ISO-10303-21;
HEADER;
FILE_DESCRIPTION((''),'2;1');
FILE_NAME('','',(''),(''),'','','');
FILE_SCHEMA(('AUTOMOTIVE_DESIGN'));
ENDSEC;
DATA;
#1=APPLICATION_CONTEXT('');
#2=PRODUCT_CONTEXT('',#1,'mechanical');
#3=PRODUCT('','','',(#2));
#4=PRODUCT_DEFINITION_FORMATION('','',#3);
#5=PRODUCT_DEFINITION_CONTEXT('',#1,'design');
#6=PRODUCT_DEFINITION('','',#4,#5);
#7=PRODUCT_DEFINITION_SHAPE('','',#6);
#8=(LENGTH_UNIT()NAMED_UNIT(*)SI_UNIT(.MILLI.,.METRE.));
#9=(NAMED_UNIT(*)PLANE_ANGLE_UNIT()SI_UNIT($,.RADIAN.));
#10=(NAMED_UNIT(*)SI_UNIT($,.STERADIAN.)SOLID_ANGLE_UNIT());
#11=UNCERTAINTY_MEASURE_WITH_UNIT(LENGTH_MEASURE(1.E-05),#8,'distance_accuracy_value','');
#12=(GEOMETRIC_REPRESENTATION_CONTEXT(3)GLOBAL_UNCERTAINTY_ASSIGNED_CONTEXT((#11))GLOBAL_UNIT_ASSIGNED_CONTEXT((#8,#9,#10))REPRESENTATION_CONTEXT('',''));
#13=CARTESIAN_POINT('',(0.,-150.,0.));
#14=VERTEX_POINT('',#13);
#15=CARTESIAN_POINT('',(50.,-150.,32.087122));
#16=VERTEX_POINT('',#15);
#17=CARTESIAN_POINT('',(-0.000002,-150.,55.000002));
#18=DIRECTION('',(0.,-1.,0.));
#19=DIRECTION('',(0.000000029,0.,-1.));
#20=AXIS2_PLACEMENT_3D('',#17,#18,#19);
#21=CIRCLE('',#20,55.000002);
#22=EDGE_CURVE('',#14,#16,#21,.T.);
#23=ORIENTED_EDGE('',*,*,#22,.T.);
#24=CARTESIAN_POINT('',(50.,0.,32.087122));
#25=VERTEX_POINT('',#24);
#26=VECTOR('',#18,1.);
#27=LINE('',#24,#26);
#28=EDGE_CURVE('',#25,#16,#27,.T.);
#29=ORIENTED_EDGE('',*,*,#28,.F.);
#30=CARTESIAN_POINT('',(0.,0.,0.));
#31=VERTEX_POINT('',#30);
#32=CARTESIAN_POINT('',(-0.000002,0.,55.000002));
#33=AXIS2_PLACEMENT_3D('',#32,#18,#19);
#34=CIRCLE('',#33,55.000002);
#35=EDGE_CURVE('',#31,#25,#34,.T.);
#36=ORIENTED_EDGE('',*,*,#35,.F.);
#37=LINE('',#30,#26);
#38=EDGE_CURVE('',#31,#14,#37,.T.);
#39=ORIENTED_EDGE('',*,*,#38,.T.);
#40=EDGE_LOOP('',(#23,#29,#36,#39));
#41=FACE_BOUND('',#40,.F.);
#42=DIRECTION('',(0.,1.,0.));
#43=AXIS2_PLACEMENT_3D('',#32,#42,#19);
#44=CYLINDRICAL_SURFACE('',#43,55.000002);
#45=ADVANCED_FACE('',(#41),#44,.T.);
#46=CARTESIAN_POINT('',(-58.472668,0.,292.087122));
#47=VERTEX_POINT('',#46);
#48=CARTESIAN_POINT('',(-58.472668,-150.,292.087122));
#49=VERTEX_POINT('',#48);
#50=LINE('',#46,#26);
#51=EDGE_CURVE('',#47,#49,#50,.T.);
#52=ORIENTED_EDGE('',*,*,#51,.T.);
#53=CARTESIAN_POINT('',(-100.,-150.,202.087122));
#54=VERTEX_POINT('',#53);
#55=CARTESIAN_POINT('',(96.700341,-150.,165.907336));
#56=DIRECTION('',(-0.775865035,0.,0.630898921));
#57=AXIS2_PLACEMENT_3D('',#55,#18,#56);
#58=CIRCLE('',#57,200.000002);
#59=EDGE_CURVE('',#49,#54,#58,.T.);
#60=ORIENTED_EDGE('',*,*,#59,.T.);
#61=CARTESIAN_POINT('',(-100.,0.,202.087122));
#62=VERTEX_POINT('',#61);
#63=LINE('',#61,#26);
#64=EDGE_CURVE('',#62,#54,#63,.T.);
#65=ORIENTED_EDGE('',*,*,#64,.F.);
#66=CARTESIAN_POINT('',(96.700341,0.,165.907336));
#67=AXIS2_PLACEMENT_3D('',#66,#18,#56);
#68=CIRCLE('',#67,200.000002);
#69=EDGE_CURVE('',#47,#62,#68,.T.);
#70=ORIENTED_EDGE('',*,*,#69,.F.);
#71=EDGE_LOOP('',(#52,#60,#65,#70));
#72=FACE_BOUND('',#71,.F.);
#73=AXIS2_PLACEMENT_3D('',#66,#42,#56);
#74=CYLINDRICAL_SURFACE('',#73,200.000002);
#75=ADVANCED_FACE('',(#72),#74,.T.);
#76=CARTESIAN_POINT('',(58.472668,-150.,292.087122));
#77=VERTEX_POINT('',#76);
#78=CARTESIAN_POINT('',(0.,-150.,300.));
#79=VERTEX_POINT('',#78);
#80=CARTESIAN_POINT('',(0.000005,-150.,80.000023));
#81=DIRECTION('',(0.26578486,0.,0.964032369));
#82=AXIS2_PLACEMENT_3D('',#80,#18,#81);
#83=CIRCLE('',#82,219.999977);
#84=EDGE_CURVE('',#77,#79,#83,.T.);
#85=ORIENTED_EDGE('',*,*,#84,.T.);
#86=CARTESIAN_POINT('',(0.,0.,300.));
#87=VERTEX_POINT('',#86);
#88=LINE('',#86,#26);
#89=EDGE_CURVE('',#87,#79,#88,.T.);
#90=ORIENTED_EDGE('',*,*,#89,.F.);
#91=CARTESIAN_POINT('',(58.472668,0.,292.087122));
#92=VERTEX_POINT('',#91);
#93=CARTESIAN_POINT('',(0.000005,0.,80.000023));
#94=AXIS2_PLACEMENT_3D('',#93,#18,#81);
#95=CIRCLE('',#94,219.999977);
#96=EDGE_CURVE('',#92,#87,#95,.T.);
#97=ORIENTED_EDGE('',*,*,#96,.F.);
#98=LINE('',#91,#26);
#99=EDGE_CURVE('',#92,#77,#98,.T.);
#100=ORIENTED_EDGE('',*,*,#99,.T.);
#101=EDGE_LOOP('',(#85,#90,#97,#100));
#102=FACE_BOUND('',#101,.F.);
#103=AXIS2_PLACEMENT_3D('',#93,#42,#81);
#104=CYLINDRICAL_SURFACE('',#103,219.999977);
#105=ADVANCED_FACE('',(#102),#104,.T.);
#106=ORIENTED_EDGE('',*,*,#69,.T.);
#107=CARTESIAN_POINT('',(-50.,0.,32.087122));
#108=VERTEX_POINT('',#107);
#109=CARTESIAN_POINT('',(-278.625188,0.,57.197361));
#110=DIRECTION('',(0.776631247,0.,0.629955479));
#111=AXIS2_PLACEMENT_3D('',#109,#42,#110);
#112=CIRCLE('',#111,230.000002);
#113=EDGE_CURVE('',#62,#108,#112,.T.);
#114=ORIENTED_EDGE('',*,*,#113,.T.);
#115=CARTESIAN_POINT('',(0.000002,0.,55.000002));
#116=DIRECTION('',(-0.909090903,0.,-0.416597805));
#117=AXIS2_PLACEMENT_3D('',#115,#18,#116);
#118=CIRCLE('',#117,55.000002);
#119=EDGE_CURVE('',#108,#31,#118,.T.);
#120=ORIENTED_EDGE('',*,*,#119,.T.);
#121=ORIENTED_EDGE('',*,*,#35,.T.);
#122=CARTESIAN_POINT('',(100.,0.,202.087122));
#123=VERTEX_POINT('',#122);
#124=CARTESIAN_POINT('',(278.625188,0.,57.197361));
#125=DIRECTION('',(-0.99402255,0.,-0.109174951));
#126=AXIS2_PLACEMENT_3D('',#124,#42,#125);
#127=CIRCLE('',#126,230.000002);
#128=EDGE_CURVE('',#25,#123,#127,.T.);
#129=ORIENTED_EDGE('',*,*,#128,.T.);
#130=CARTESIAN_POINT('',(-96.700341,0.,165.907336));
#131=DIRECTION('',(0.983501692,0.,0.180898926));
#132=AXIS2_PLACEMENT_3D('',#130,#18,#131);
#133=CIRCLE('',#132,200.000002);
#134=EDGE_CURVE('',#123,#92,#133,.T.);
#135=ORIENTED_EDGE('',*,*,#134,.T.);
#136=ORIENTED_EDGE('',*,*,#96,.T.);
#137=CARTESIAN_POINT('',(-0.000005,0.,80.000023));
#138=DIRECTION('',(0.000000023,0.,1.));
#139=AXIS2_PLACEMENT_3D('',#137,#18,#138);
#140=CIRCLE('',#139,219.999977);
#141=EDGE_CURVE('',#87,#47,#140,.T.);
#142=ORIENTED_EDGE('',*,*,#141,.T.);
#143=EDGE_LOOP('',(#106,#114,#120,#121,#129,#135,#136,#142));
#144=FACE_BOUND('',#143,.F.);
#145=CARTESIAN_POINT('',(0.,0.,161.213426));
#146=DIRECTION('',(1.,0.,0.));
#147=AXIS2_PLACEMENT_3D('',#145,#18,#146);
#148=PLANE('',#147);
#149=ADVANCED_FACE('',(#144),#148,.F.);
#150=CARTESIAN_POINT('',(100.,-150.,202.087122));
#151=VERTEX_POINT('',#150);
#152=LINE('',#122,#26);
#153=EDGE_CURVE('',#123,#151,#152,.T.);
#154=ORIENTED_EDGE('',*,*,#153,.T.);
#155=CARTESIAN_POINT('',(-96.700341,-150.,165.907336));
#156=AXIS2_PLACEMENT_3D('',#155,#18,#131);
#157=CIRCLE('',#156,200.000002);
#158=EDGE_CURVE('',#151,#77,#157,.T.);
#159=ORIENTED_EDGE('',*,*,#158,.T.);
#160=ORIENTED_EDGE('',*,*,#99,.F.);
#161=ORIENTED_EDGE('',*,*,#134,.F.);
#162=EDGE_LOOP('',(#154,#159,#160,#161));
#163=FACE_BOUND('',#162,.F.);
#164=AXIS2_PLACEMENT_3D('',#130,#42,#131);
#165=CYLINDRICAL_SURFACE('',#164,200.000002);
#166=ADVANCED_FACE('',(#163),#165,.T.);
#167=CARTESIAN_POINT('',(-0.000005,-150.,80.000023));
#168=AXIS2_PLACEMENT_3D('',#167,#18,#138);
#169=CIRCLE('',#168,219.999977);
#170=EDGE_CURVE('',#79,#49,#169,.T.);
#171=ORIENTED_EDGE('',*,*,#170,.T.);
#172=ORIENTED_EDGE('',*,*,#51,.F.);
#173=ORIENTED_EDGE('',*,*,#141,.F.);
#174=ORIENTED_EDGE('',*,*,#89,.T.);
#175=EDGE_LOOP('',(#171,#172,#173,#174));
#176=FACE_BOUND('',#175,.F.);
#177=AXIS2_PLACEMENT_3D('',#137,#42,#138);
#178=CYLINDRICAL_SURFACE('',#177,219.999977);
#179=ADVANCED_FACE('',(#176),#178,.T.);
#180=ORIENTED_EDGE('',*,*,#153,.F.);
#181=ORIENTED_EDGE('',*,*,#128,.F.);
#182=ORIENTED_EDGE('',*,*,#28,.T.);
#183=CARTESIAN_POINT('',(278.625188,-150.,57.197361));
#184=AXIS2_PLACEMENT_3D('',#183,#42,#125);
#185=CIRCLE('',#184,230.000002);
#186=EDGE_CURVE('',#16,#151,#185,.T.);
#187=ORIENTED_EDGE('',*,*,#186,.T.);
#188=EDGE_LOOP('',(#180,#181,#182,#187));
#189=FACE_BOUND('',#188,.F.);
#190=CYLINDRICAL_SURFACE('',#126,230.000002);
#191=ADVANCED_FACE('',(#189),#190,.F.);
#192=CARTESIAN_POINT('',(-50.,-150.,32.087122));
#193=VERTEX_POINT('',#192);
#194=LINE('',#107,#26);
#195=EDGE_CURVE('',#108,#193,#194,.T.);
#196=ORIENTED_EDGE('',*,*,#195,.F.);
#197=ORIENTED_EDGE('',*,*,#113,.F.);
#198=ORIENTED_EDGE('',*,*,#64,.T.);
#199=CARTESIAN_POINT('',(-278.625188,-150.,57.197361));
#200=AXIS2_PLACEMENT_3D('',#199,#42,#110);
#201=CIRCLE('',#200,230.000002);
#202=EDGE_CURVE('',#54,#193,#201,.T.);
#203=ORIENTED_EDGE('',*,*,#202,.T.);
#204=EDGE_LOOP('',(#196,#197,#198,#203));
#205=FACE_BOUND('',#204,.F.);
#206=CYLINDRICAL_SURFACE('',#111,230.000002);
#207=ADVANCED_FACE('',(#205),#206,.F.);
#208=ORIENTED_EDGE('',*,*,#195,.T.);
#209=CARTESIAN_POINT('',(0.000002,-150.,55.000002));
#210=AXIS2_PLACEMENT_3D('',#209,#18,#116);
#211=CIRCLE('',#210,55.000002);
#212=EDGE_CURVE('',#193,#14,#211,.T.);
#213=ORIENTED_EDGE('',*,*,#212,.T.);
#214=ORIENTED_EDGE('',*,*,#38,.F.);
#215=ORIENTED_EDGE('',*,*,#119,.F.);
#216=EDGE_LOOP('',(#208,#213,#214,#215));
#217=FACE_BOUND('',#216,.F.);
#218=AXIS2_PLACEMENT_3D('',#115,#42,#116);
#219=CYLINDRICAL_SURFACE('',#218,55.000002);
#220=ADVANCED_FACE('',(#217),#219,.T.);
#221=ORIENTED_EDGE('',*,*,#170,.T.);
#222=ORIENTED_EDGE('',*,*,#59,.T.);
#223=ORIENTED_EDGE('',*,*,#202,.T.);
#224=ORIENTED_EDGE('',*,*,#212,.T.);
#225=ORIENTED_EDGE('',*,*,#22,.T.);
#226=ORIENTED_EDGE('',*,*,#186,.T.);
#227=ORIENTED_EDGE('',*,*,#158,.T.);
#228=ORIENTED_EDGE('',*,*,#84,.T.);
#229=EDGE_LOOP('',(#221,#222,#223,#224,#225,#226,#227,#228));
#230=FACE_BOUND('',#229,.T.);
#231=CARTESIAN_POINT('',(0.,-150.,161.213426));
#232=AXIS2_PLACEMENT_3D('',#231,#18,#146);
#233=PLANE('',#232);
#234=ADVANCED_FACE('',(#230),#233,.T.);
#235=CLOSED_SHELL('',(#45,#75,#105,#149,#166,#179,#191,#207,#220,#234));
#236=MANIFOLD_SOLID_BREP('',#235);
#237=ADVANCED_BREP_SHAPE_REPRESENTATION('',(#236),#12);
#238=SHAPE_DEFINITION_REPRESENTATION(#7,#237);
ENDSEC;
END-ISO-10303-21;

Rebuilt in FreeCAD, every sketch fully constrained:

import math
import FreeCAD as App
import Part
import Sketcher
from FreeCAD import Vector

doc = App.newDocument("Part")
body = doc.addObject("PartDesign::Body", "Body")

# Sketch on XZ plane
sketch1 = body.newObject("Sketcher::SketchObject", "Sketch")
sketch1.AttachmentSupport = (doc.getObject("XZ_Plane"), [""])
sketch1.MapMode = "FlatFace"
sketch1.addGeometry([
    Part.ArcOfCircle(Part.Circle(Vector(-96.700341, 165.907336, 0), Vector(0, 0, 1), 200.000002), math.radians(10.422124), math.radians(39.116474)),  # 0
    Part.ArcOfCircle(Part.Circle(Vector(0.000005, 80.000023, 0), Vector(0, 0, 1), 219.999977), math.radians(74.586406), math.radians(90.000001)),  # 1
    Part.ArcOfCircle(Part.Circle(Vector(-0.000005, 80.000023, 0), Vector(0, 0, 1), 219.999977), math.radians(89.999999), math.radians(105.413594)),  # 2
    Part.ArcOfCircle(Part.Circle(Vector(96.700341, 165.907336, 0), Vector(0, 0, 1), 200.000002), math.radians(140.883526), math.radians(169.577876)),  # 3
    Part.ArcOfCircle(Part.Circle(Vector(-278.625188, 57.197361, 0), Vector(0, 0, 1), 230.000002), math.radians(-6.267757), math.radians(39.046838)),  # 4
    Part.ArcOfCircle(Part.Circle(Vector(0.000002, 55.000002, 0), Vector(0, 0, 1), 55.000002), math.radians(-155.380022), math.radians(-90.000002)),  # 5
    Part.ArcOfCircle(Part.Circle(Vector(-0.000002, 55.000002, 0), Vector(0, 0, 1), 55.000002), math.radians(-89.999998), math.radians(-24.619978)),  # 6
    Part.ArcOfCircle(Part.Circle(Vector(278.625188, 57.197361, 0), Vector(0, 0, 1), 230.000002), math.radians(140.953162), math.radians(186.267757)),  # 7
], False)
sketch1.addConstraint([
    Sketcher.Constraint("Coincident", 0, 2, 1, 1),
    Sketcher.Constraint("Tangent", 1, 2, 2, 1),
    Sketcher.Constraint("Coincident", 2, 2, 3, 1),
    Sketcher.Constraint("Coincident", 3, 2, 4, 2),
    Sketcher.Constraint("Coincident", 4, 1, 5, 1),
    Sketcher.Constraint("Tangent", 5, 2, 6, 1),
    Sketcher.Constraint("Coincident", 6, 2, 7, 2),
    Sketcher.Constraint("Coincident", 7, 1, 0, 1),
    Sketcher.Constraint("Coincident", 5, 2, -1, 1),
    Sketcher.Constraint("Equal", 1, 2),
    Sketcher.Constraint("Equal", 0, 3),
    Sketcher.Constraint("Equal", 5, 6),
    Sketcher.Constraint("Equal", 4, 7),
    Sketcher.Constraint("Symmetric", 0, 3, 3, 3, -2),
    Sketcher.Constraint("Symmetric", 4, 3, 7, 3, -2),
    Sketcher.Constraint("PointOnObject", 5, 3, -2),
    Sketcher.Constraint("PointOnObject", 1, 2, -2),
    Sketcher.Constraint("Horizontal", 0, 2, 2, 2),
    Sketcher.Constraint("Radius", 4, 230.000002),
    Sketcher.Constraint("DistanceY", -1, 1, 1, 2, 300.0),
    Sketcher.Constraint("DistanceX", 3, 2, -1, 1, 100.0),
    Sketcher.Constraint("DistanceX", 4, 1, -1, 1, 50.0),
    Sketcher.Constraint("DistanceY", 3, 2, 2, 2, 90.0),
    Sketcher.Constraint("Radius", 0, 200.000002),
    Sketcher.Constraint("Radius", 1, 219.999977),
    Sketcher.Constraint("Radius", 5, 55.000002),
    Sketcher.Constraint("DistanceY", 2, 3, 2, 2, 212.087099),
])
pad1 = body.newObject("PartDesign::Pad", "Pad")
pad1.Profile = sketch1
pad1.Length = 150

doc.recompute()
